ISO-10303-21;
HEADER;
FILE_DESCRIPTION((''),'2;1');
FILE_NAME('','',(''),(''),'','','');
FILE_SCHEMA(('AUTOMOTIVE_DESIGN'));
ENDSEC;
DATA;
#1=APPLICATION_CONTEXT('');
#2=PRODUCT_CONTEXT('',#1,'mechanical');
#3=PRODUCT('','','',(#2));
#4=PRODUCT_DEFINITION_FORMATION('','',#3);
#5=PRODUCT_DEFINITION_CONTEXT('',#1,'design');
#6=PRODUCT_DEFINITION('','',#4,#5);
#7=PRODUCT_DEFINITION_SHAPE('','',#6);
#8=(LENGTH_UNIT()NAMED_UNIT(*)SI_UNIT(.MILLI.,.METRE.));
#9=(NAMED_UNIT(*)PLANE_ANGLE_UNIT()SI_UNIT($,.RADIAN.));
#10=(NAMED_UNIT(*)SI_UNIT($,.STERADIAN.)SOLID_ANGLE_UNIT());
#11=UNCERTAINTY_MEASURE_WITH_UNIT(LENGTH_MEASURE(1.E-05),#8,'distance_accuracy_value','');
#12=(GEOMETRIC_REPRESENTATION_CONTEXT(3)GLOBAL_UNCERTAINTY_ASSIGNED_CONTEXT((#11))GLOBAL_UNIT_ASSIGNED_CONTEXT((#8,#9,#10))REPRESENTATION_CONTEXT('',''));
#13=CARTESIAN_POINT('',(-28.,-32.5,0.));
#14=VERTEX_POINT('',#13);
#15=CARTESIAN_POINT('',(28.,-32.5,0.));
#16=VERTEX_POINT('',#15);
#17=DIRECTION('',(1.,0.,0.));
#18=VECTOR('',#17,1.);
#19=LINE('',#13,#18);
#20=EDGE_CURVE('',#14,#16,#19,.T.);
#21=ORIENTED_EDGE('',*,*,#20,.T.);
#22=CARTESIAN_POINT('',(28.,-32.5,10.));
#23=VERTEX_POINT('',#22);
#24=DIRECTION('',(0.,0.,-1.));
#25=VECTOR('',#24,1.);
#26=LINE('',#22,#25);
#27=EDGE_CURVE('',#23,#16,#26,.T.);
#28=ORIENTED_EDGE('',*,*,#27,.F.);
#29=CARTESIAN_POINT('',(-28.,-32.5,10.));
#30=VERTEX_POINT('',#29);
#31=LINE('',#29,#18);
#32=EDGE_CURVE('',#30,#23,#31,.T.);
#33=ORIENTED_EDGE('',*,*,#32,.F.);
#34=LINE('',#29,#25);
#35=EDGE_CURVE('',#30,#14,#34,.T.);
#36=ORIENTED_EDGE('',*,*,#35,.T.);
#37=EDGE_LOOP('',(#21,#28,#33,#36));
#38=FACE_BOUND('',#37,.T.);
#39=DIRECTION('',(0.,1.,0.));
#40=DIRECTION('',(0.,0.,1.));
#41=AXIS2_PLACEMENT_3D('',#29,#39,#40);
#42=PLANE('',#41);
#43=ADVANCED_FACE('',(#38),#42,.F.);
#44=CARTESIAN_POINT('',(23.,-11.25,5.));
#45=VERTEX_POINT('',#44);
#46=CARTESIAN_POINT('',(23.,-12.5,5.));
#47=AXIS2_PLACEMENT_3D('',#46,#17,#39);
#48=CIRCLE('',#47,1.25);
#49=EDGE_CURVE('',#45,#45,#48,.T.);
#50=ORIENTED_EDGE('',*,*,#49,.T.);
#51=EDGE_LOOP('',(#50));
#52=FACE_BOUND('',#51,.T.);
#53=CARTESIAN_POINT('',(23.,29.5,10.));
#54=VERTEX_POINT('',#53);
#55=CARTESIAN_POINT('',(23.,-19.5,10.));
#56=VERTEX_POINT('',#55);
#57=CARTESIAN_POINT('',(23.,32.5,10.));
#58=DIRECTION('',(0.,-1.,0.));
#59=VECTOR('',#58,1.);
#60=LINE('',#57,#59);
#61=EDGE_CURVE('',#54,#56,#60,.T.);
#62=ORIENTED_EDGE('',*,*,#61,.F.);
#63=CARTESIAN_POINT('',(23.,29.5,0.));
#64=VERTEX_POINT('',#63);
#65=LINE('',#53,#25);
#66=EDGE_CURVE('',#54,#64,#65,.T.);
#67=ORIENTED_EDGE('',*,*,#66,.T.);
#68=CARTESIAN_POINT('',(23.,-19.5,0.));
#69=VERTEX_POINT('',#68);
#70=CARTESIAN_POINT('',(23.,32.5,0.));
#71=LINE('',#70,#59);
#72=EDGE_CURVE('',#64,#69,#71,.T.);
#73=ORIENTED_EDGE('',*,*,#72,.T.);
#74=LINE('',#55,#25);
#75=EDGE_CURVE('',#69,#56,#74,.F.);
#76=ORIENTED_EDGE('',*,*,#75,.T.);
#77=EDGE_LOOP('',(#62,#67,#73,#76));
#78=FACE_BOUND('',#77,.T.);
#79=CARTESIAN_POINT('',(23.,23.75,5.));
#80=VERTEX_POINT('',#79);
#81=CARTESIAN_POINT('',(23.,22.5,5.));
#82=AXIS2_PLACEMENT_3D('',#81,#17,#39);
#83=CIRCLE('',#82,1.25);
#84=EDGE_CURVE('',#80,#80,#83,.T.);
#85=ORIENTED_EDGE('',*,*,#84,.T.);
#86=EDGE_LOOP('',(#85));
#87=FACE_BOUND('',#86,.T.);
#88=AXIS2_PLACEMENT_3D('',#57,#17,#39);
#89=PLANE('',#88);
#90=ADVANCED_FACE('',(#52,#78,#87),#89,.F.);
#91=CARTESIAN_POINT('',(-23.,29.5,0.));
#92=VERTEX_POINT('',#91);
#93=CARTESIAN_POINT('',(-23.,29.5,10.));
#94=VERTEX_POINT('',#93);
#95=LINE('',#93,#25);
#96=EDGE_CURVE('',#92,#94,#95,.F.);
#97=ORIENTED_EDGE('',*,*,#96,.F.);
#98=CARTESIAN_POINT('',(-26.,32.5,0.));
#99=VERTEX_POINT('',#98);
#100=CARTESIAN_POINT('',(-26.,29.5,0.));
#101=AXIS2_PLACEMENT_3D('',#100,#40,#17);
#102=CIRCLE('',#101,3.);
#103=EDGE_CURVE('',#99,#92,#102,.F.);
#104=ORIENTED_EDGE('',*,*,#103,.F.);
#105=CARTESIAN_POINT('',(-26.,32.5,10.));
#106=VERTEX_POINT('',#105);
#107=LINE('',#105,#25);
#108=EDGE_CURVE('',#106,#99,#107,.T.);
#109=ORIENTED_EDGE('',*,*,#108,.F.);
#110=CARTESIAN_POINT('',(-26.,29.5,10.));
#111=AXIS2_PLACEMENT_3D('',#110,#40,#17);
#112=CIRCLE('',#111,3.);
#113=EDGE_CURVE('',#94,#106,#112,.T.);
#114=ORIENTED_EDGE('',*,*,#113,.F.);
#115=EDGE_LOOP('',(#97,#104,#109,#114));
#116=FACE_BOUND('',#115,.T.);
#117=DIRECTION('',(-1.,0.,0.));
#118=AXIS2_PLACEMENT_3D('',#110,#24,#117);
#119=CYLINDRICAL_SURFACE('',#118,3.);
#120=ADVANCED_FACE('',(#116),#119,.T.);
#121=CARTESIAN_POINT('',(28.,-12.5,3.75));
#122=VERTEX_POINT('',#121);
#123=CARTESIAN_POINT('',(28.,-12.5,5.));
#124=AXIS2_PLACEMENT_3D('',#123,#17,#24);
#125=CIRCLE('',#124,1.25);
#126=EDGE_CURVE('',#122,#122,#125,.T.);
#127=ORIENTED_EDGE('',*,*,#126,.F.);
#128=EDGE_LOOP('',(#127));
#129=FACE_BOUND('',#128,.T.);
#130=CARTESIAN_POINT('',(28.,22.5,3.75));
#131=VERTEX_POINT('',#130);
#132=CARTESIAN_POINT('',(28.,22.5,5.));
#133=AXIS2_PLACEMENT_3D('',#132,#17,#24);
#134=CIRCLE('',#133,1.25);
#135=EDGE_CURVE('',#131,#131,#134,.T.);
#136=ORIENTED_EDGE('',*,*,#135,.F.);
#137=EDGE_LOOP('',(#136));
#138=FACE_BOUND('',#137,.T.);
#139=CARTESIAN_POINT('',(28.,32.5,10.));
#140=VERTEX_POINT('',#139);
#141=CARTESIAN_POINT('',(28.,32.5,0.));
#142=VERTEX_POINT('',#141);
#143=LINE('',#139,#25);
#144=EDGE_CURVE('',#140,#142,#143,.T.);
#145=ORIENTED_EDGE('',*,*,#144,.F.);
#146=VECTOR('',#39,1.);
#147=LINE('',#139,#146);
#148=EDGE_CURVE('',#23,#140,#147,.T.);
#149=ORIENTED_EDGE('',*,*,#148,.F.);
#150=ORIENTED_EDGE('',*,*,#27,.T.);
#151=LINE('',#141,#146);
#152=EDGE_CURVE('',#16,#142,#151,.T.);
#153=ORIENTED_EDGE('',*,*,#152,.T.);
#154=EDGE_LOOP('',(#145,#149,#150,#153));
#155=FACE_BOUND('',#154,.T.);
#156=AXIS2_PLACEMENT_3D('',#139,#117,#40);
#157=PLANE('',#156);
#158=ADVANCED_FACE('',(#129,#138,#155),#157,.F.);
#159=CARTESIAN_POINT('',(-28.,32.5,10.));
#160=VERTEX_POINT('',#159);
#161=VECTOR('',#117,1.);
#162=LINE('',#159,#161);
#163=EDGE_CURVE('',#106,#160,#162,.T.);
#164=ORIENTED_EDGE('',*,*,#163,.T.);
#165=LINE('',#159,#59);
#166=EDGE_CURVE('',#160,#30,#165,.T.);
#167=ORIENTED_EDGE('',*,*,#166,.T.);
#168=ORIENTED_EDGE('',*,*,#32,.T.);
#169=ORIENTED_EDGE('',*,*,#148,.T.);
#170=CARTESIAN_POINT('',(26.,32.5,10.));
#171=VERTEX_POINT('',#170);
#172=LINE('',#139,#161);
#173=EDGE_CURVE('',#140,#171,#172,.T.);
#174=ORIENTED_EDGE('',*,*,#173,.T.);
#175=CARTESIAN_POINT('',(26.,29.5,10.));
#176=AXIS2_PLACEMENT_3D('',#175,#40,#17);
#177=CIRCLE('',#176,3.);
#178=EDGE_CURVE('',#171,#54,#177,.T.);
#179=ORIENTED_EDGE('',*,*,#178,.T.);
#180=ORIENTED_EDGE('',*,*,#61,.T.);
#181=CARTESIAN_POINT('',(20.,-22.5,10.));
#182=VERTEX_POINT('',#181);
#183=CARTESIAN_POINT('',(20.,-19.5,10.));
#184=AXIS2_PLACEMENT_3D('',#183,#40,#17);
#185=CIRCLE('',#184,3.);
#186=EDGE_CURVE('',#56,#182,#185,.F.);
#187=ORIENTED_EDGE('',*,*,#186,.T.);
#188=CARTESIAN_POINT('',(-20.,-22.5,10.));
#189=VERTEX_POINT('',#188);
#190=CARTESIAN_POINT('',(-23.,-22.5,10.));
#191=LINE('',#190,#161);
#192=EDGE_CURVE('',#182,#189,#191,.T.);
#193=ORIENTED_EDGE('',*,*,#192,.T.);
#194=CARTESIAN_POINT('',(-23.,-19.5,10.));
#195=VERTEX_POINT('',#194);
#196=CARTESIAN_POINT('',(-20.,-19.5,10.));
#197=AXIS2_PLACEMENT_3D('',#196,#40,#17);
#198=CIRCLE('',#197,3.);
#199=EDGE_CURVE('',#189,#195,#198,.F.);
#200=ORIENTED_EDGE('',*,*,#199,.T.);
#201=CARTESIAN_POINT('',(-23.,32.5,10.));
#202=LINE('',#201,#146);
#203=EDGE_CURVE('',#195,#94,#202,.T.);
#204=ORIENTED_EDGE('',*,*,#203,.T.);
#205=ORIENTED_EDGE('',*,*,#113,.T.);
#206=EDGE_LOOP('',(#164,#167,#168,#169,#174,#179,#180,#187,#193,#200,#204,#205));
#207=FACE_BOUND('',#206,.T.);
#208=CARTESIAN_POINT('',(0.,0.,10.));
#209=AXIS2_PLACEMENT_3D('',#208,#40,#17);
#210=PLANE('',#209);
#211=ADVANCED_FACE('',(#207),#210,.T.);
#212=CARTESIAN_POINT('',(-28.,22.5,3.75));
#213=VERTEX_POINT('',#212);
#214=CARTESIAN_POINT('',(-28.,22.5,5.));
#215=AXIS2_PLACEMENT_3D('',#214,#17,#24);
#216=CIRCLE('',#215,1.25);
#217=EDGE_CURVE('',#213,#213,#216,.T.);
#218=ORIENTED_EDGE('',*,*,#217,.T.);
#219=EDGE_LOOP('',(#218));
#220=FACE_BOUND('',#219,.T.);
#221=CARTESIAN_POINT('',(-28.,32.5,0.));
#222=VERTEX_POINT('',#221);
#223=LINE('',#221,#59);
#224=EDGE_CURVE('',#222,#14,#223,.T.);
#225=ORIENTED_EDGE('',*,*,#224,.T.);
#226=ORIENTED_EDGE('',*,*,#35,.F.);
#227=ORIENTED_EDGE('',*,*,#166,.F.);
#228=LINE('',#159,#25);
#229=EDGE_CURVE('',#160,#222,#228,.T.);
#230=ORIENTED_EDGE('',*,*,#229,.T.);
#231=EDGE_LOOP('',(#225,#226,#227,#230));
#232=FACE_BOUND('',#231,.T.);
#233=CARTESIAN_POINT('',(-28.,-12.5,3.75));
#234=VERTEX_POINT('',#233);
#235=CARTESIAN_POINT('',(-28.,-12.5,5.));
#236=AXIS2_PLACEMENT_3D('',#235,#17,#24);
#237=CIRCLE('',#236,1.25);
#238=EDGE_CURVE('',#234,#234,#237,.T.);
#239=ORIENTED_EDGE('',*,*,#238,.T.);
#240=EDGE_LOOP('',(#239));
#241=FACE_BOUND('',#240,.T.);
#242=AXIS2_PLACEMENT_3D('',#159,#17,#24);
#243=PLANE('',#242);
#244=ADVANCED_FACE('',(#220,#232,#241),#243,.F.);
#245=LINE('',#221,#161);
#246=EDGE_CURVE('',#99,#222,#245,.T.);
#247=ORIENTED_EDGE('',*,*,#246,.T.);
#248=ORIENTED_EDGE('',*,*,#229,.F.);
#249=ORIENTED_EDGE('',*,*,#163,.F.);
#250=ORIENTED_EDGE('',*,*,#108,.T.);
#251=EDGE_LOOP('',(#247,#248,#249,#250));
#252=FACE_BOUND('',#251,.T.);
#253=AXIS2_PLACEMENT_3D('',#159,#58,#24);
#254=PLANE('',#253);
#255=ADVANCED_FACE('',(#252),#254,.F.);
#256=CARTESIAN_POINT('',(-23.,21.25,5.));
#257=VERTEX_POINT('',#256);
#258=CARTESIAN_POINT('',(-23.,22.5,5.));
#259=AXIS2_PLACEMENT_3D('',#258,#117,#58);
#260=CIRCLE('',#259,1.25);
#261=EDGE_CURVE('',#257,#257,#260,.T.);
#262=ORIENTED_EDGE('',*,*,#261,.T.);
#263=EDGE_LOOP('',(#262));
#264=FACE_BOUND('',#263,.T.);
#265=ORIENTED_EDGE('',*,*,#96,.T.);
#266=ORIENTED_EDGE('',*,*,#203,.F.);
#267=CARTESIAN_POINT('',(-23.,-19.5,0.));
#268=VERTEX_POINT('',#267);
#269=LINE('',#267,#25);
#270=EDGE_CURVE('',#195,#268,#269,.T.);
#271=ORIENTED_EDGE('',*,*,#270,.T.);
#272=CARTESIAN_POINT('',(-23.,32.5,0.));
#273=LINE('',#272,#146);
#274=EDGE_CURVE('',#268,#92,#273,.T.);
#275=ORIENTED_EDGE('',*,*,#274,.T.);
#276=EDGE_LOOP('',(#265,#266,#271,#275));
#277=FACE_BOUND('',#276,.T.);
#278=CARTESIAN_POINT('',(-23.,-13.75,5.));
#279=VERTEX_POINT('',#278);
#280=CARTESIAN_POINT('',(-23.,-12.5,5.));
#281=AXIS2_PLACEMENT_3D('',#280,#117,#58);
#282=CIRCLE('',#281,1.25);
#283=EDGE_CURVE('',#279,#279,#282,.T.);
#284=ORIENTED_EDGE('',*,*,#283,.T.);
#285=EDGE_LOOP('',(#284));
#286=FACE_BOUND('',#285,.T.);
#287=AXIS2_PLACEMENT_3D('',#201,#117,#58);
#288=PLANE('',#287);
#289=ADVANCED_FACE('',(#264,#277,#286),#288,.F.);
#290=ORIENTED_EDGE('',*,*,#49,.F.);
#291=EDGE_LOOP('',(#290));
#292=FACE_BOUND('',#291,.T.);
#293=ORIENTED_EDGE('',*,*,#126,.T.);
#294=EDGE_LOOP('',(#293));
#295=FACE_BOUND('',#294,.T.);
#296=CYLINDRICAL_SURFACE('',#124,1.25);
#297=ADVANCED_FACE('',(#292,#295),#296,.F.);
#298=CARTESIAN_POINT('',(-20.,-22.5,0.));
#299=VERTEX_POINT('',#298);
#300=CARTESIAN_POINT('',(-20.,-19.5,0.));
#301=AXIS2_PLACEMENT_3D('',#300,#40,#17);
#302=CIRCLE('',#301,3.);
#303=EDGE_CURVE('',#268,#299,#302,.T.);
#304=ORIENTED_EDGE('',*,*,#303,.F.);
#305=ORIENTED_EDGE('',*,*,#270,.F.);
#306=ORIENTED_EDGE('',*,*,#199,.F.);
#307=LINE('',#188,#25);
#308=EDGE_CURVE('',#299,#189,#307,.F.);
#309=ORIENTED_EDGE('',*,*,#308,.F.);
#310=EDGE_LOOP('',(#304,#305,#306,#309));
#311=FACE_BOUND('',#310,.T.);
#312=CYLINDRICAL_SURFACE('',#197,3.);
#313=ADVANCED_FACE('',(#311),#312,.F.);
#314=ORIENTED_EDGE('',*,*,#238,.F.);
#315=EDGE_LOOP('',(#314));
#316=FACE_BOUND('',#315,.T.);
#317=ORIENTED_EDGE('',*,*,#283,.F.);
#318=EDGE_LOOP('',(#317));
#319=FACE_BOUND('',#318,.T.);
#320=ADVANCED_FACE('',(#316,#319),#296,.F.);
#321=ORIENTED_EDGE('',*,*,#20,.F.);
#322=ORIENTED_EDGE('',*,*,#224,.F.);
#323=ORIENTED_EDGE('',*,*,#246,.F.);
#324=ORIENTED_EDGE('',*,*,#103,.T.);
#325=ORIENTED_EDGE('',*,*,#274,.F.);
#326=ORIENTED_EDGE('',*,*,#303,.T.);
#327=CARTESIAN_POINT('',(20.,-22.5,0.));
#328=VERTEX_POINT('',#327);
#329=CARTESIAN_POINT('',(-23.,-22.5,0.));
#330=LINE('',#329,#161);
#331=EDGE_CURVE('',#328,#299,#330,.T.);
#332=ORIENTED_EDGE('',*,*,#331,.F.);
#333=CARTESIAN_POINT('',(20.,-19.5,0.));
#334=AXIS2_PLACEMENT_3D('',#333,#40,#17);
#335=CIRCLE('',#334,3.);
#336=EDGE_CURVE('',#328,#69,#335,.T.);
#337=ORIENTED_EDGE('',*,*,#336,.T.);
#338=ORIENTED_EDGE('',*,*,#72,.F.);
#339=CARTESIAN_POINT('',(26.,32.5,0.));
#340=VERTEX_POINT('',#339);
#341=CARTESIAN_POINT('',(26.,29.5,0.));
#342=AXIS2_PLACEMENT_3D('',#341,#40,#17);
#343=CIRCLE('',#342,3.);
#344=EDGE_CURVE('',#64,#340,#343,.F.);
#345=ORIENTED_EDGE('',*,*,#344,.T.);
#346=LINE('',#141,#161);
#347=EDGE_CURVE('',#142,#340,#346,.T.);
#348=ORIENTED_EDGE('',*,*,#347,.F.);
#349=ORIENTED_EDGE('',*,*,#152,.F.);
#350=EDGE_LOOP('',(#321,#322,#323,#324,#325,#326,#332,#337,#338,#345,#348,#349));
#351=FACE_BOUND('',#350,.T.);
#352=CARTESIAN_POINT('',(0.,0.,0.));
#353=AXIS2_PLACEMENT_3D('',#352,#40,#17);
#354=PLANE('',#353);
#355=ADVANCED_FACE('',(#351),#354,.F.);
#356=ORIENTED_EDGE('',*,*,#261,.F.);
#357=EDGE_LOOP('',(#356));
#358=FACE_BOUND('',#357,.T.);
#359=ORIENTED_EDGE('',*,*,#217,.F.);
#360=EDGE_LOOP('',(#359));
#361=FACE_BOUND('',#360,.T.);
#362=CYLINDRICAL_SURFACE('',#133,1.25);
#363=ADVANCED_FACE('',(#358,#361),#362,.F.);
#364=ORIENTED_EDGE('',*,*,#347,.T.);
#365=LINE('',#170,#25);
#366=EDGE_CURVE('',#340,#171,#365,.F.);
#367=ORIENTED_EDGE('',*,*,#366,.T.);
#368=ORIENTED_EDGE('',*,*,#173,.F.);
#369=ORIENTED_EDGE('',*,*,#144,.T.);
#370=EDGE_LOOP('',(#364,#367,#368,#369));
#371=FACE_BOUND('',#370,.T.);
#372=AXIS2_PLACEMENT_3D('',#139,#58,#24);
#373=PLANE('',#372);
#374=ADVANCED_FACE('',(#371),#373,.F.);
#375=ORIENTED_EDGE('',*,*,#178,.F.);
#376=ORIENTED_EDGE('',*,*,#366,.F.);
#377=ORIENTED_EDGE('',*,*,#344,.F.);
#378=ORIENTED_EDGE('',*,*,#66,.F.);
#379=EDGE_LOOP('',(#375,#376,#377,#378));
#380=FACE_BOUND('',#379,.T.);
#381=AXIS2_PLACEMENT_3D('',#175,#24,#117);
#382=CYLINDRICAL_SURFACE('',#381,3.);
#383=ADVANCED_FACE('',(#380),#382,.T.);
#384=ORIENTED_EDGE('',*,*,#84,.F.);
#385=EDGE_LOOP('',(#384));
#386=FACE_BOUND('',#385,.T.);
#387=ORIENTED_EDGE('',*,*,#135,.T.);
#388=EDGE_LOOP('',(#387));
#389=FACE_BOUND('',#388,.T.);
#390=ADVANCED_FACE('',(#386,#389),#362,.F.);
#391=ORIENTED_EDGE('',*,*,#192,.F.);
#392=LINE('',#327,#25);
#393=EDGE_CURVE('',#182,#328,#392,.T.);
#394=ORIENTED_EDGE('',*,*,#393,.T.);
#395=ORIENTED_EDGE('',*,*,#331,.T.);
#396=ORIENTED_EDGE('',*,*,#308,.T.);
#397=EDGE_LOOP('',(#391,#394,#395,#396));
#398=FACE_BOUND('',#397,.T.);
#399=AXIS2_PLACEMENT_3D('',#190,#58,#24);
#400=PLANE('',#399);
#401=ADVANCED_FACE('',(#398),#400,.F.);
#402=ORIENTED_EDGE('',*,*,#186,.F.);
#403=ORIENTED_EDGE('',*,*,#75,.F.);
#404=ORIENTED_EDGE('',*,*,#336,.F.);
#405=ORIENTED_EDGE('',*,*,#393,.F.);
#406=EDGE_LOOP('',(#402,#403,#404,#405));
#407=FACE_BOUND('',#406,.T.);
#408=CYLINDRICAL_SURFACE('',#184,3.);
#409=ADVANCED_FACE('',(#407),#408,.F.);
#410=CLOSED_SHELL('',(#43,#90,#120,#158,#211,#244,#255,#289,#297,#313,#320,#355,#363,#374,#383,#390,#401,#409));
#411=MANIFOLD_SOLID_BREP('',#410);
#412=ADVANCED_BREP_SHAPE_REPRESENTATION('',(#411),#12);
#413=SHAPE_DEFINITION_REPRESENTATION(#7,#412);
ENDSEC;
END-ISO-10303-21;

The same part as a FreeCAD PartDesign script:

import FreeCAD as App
import Part
import Sketcher
from FreeCAD import Vector
Q = App.Units.Quantity


def edges_at(feature, points):
    """Names of the edges that pass closest to the given points."""
    edges = feature.Shape.Edges
    near = lambda p: min(range(len(edges)), key=lambda i: edges[i].distToShape(Part.Vertex(*p))[0])
    return sorted({f"Edge{near(p) + 1}" for p in points})


def add_polygon(sketch, points):
    """Adds a closed chain of lines whose ends are joined by coincident constraints."""
    first, n = sketch.GeometryCount, len(points)
    for a, b in zip(points, points[1:] + points[:1]):
        sketch.addGeometry(Part.LineSegment(App.Vector(*a, 0), App.Vector(*b, 0)), False)
    for i in range(n):
        sketch.addConstraint(Sketcher.Constraint("Coincident", first + i, 2, first + (i + 1) % n, 1))

doc = App.newDocument("Part")
params = doc.addObject("Spreadsheet::Sheet", "Params")
for row, (alias, value) in enumerate([
    ("sketch1_width", "5 mm"),
    ("sketch1_width2", "46 mm"),
    ("sketch1_height", "55 mm"),
    ("sketch1_height2", "65 mm"),
    ("pad1_length", "10 mm"),
    ("fillet_radius", "3 mm"),
    ("sketch2_diameter", "2.5 mm"),
    ("hole_diameter", "2.5 mm"),
], start=1):
    params.set(f"A{row}", alias)
    params.set(f"B{row}", "=" + value)
    params.setAlias(f"B{row}", alias)

body = doc.addObject("PartDesign::Body", "Body")

sketch1 = body.newObject("Sketcher::SketchObject", "Sketch")
sketch1.AttachmentSupport = (doc.getObject("XY_Plane"), [""])
sketch1.MapMode = "FlatFace"
add_polygon(sketch1, [(28, 32.5), (23, 32.5), (23, -22.5), (-23, -22.5), (-23, 32.5), (-28, 32.5), (-28, -32.5), (28, -32.5)])
sketch1.addConstraint([
    Sketcher.Constraint("Horizontal", 0),
    Sketcher.Constraint("Vertical", 1),
    Sketcher.Constraint("Horizontal", 2),
    Sketcher.Constraint("Vertical", 3),
    Sketcher.Constraint("Horizontal", 4),
    Sketcher.Constraint("Vertical", 5),
    Sketcher.Constraint("Horizontal", 6),
    Sketcher.Constraint("Vertical", 7),
    Sketcher.Constraint("Symmetric", 4, 2, 6, 2, -1, 1),
    Sketcher.Constraint("Symmetric", 0, 2, 3, 2, -2),
    Sketcher.Constraint("DistanceX", 0, 2, 0, 1, Q("5 mm")),
    Sketcher.Constraint("DistanceX", 2, 2, 2, 1, Q("46 mm")),
    Sketcher.Constraint("DistanceY", 1, 2, 1, 1, Q("55 mm")),
    Sketcher.Constraint("DistanceY", 5, 2, 5, 1, Q("65 mm")),
])
sketch1.setExpression("Constraints[18]", "Params.sketch1_width")
sketch1.setExpression("Constraints[19]", "Params.sketch1_width2")
sketch1.setExpression("Constraints[20]", "Params.sketch1_height")
sketch1.setExpression("Constraints[21]", "Params.sketch1_height2")
pad1 = body.newObject("PartDesign::Pad", "Pad")
pad1.Profile = sketch1
pad1.setExpression("Length", "Params.pad1_length")
doc.recompute()

fillet = body.newObject("PartDesign::Fillet", "Fillet")
fillet.Base = (pad1, edges_at(pad1, [
    (-23, 32.5, 5),
    (-23, -22.5, 5),
    (23, -22.5, 5),
    (23, 32.5, 5),
]))
fillet.setExpression("Radius", "Params.fillet_radius")

sketch2 = body.newObject("Sketcher::SketchObject", "Sketch001")
sketch2.AttachmentSupport = (doc.getObject("YZ_Plane"), [""])
sketch2.MapMode = "FlatFace"
sketch2.AttachmentOffset = App.Placement(Vector(0, 0, 28), App.Rotation())
sketch2.addGeometry([
    Part.Circle(Vector(22.5, 5, 0), Vector(0, 0, 1), 1.25),
    Part.Circle(Vector(-12.5, 5, 0), Vector(0, 0, 1), 1.25),
], False)
sketch2.addConstraint([
    Sketcher.Constraint("Equal", 0, 1),
    Sketcher.Constraint("Horizontal", 0, 3, 1, 3),
    Sketcher.Constraint("Diameter", 0, Q("2.5 mm")),
    Sketcher.Constraint("DistanceY", -1, 1, 0, 3, Q("5 mm")),
    Sketcher.Constraint("DistanceX", 1, 3, 0, 3, Q("35 mm")),
    Sketcher.Constraint("DistanceX", -1, 1, 0, 3, Q("22.5 mm")),
])
sketch2.setExpression("Constraints[2]", "Params.sketch2_diameter")
doc.recompute()
hole = body.newObject("PartDesign::Hole", "Hole")
hole.Profile = sketch2
hole.ThreadType = "None"
hole.setExpression("Diameter", "Params.hole_diameter")
hole.DepthType = "ThroughAll"

doc.recompute()
